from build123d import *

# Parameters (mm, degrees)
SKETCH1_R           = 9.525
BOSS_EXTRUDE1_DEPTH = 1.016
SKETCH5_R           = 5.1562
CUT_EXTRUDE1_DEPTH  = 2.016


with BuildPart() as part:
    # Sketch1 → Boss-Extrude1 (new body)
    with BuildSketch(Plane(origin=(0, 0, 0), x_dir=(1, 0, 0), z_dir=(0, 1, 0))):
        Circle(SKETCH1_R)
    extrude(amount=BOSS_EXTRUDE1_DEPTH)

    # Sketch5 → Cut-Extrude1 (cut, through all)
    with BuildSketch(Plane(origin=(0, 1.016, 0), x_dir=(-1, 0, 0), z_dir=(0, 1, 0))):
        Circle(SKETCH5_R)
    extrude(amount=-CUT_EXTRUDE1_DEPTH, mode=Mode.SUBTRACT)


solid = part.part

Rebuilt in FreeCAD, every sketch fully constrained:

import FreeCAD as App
import Part
import Sketcher
from FreeCAD import Vector
Q = App.Units.Quantity

doc = App.newDocument("Part")
body = doc.addObject("PartDesign::Body", "Body")

# Sketch on XZ plane
sketch1 = body.newObject("Sketcher::SketchObject", "Sketch")
sketch1.AttachmentSupport = (doc.getObject("XZ_Plane"), [""])
sketch1.MapMode = "FlatFace"
sketch1.addGeometry(Part.Circle(Vector(0, 0, 0), Vector(0, 0, 1), 10), False)
sketch1.addConstraint([
    Sketcher.Constraint("Coincident", 0, 3, -1, 1),
    Sketcher.Constraint("Diameter", 0, Q("0.75 in")),
])
pad1 = body.newObject("PartDesign::Pad", "Pad")
pad1.Profile = sketch1
pad1.Length = Q("0.04 in")
pad1.Reversed = True

# Sketch on XZ plane
sketch2 = body.newObject("Sketcher::SketchObject", "Sketch001")
sketch2.AttachmentSupport = (doc.getObject("XZ_Plane"), [""])
sketch2.MapMode = "FlatFace"
sketch2.AttachmentOffset = App.Placement(Vector(0, 0, -0.04 * 25.4), App.Rotation())
sketch2.addGeometry(Part.Circle(Vector(0, 0, 0), Vector(0, 0, 1), 5), False)
sketch2.addConstraint([
    Sketcher.Constraint("Coincident", 0, 3, -1, 1),
    Sketcher.Constraint("Diameter", 0, Q("0.406 in")),
])
pocket1 = body.newObject("PartDesign::Pocket", "Pocket")
pocket1.Profile = sketch2
pocket1.Type = "ThroughAll"
pocket1.Reversed = True

doc.recompute()
